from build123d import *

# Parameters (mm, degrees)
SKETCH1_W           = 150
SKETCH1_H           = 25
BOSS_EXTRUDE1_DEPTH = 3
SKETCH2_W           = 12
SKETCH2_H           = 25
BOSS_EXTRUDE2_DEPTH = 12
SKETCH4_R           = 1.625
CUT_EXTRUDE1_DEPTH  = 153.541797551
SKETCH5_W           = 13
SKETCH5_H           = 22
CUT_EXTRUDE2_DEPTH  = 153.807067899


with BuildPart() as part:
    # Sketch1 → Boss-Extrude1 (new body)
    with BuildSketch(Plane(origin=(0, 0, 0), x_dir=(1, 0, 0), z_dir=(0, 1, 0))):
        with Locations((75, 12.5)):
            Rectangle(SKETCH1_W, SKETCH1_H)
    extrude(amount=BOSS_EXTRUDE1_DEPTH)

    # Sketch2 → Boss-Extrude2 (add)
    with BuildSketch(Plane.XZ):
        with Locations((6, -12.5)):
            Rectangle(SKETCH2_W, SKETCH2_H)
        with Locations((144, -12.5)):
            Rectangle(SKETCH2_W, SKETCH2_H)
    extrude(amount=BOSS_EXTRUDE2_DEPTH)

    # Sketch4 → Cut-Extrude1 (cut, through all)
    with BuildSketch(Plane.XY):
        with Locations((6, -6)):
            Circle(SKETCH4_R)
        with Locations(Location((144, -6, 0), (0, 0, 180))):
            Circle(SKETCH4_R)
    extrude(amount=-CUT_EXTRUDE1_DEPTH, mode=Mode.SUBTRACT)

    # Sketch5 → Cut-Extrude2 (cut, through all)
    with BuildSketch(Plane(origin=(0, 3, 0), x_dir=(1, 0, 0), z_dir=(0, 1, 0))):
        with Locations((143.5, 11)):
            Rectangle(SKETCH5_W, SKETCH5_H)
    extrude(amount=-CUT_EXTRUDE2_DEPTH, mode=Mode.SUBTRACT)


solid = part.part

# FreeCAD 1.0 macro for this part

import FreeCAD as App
import Part
import Sketcher
from FreeCAD import Vector
Q = App.Units.Quantity


def add_polygon(sketch, points):
    """Adds a closed chain of lines whose ends are joined by coincident constraints."""
    first, n = sketch.GeometryCount, len(points)
    for a, b in zip(points, points[1:] + points[:1]):
        sketch.addGeometry(Part.LineSegment(App.Vector(*a, 0), App.Vector(*b, 0)), False)
    for i in range(n):
        sketch.addConstraint(Sketcher.Constraint("Coincident", first + i, 2, first + (i + 1) % n, 1))

doc = App.newDocument("Part")
body = doc.addObject("PartDesign::Body", "Body")

# Sketch on XZ plane
sketch1 = doc.addObject("Sketcher::SketchObject", "Sketch")
body.addObject(sketch1)
sketch1.AttachmentSupport = (doc.XZ_Plane, [""])
sketch1.MapMode = "FlatFace"
add_polygon(sketch1, [(0, -25), (0, 0), (150, 0), (150, -25)])  # lines 0-3
sketch1.addConstraint([
    Sketcher.Constraint("Vertical", 0),
    Sketcher.Constraint("Horizontal", 1),
    Sketcher.Constraint("Vertical", 2),
    Sketcher.Constraint("Horizontal", 3),
    Sketcher.Constraint("Coincident", 0, 2, -1, 1),
    Sketcher.Constraint("DistanceX", 1, 1, 1, 2, Q("150 mm")),
    Sketcher.Constraint("DistanceY", 0, 1, 0, 2, Q("25 mm")),
])
pad1 = doc.addObject("PartDesign::Pad", "Pad")
body.addObject(pad1)
pad1.Profile = sketch1
pad1.Length = 3
pad1.Reversed = True

# Sketch on XZ plane
sketch2 = doc.addObject("Sketcher::SketchObject", "Sketch001")
body.addObject(sketch2)
sketch2.AttachmentSupport = (doc.XZ_Plane, [""])
sketch2.MapMode = "FlatFace"
add_polygon(sketch2, [(0, 0), (0, -25), (12, -25), (12, 0)])  # lines 0-3
add_polygon(sketch2, [(138, 0), (138, -25), (150, -25), (150, 0)])  # lines 4-7
sketch2.addConstraint([
    Sketcher.Constraint("Vertical", 0),
    Sketcher.Constraint("Horizontal", 1),
    Sketcher.Constraint("Vertical", 2),
    Sketcher.Constraint("Horizontal", 3),
    Sketcher.Constraint("Vertical", 4),
    Sketcher.Constraint("Horizontal", 5),
    Sketcher.Constraint("Vertical", 6),
    Sketcher.Constraint("Horizontal", 7),
    Sketcher.Constraint("Coincident", 3, 2, -1, 1),
    Sketcher.Constraint("PointOnObject", 6, 2, -1),
    Sketcher.Constraint("Horizontal", 1, 2, 4, 2),
    Sketcher.Constraint("Equal", 3, 5),
    Sketcher.Constraint("DistanceX", 1, 1, 1, 2, Q("12 mm")),
    Sketcher.Constraint("DistanceY", 0, 2, 0, 1, Q("25 mm")),
    Sketcher.Constraint("DistanceX", -1, 1, 4, 2, Q("138 mm")),
])
pad2 = doc.addObject("PartDesign::Pad", "Pad001")
body.addObject(pad2)
pad2.Profile = sketch2
pad2.Length = 12

# Sketch on XY plane
sketch3 = doc.addObject("Sketcher::SketchObject", "Sketch002")
body.addObject(sketch3)
sketch3.AttachmentSupport = (doc.XY_Plane, [""])
sketch3.MapMode = "FlatFace"
sketch3.addGeometry([
    Part.Circle(Vector(6, -6, 0), Vector(0, 0, 1), 1.6),
    Part.Circle(Vector(144, -6, 0), Vector(0, 0, 1), 1.6),
], False)
sketch3.addConstraint([
    Sketcher.Constraint("Equal", 0, 1),
    Sketcher.Constraint("Horizontal", 0, 3, 1, 3),
    Sketcher.Constraint("Diameter", 0, Q("3.25 mm")),
    Sketcher.Constraint("DistanceX", -1, 1, 0, 3, Q("6 mm")),
    Sketcher.Constraint("DistanceY", 0, 3, -1, 1, Q("6 mm")),
    Sketcher.Constraint("DistanceX", -1, 1, 1, 3, Q("144 mm")),
])
pocket1 = doc.addObject("PartDesign::Pocket", "Pocket")
body.addObject(pocket1)
pocket1.Profile = sketch3
pocket1.Type = "ThroughAll"

# Sketch on XZ plane
sketch4 = doc.addObject("Sketcher::SketchObject", "Sketch003")
body.addObject(sketch4)
sketch4.AttachmentSupport = (doc.XZ_Plane, [""])
sketch4.MapMode = "FlatFace"
sketch4.AttachmentOffset = App.Placement(Vector(0, 0, -3), App.Rotation())
add_polygon(sketch4, [(137, -22), (137, 0), (150, 0), (150, -22)])  # lines 0-3
sketch4.addConstraint([
    Sketcher.Constraint("Vertical", 0),
    Sketcher.Constraint("Horizontal", 1),
    Sketcher.Constraint("Vertical", 2),
    Sketcher.Constraint("Horizontal", 3),
    Sketcher.Constraint("PointOnObject", 0, 2, -1),
    Sketcher.Constraint("DistanceX", 1, 1, 1, 2, Q("13 mm")),
    Sketcher.Constraint("DistanceY", 0, 1, 0, 2, Q("22 mm")),
    Sketcher.Constraint("DistanceX", -1, 1, 0, 2, Q("137 mm")),
])
pocket2 = doc.addObject("PartDesign::Pocket", "Pocket001")
body.addObject(pocket2)
pocket2.Profile = sketch4
pocket2.Type = "ThroughAll"
pocket2.Reversed = True

doc.recompute()
